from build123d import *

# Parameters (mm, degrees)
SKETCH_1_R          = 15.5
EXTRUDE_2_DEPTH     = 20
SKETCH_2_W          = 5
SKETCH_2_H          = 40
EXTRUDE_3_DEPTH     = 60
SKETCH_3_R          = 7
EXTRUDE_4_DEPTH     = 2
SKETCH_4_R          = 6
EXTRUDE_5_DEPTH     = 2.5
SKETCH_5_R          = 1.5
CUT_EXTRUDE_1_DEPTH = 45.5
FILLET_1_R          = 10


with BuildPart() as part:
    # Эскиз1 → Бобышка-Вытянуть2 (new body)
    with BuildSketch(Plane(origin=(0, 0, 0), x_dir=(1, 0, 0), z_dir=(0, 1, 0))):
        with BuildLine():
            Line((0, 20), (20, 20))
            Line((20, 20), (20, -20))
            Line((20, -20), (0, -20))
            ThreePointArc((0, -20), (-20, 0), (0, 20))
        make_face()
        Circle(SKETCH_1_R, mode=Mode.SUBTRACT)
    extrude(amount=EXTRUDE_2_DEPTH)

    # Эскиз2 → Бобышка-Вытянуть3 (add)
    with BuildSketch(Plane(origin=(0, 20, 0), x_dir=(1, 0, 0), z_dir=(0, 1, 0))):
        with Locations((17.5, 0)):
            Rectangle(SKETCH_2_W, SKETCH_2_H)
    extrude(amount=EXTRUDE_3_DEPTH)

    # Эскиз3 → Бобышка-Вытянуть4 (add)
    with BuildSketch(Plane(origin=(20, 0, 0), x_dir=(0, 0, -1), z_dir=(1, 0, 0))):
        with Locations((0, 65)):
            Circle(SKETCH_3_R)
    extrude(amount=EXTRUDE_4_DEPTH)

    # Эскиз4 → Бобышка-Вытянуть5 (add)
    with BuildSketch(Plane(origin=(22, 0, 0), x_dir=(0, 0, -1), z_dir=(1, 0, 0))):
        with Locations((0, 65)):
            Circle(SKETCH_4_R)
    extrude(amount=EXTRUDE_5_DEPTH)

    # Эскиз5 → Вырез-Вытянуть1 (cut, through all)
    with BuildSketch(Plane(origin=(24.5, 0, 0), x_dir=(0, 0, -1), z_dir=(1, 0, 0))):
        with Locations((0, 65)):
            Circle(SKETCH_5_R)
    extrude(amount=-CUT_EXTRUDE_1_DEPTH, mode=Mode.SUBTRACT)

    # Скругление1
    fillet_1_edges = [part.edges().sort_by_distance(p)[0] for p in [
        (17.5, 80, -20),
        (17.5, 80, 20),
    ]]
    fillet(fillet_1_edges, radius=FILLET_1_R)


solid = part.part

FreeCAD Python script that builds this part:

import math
import FreeCAD as App
import Part
import Sketcher
from FreeCAD import Vector
Q = App.Units.Quantity


def edges_at(feature, points):
    """Names of the edges that pass closest to the given points."""
    edges = feature.Shape.Edges
    near = lambda p: min(range(len(edges)), key=lambda i: edges[i].distToShape(Part.Vertex(*p))[0])
    return sorted({f"Edge{near(p) + 1}" for p in points})


def add_polygon(sketch, points):
    """Adds a closed chain of lines whose ends are joined by coincident constraints."""
    first, n = sketch.GeometryCount, len(points)
    for a, b in zip(points, points[1:] + points[:1]):
        sketch.addGeometry(Part.LineSegment(App.Vector(*a, 0), App.Vector(*b, 0)), False)
    for i in range(n):
        sketch.addConstraint(Sketcher.Constraint("Coincident", first + i, 2, first + (i + 1) % n, 1))

doc = App.newDocument("Part")
params = doc.addObject("Spreadsheet::Sheet", "Params")
for row, (alias, value) in enumerate([
    ("sketch1_diameter", "31 mm"),
    ("sketch1_radius", "20 mm"),
    ("sketch1_width", "20 mm"),
    ("pad1_length", "20 mm"),
    ("sketch2_width", "5 mm"),
    ("sketch2_height", "40 mm"),
    ("pad2_length", "60 mm"),
    ("sketch3_diameter", "14 mm"),
    ("pad3_length", "2 mm"),
    ("sketch4_diameter", "12 mm"),
    ("pad4_length", "2.5 mm"),
    ("sketch5_diameter", "3 mm"),
    ("fillet_radius", "10 mm"),
], start=1):
    params.set(f"A{row}", alias)
    params.set(f"B{row}", "=" + value)
    params.setAlias(f"B{row}", alias)

body = doc.addObject("PartDesign::Body", "Body")

# Sketch on XZ plane
sketch1 = body.newObject("Sketcher::SketchObject", "Sketch")
sketch1.AttachmentSupport = (doc.getObject("XZ_Plane"), [""])
sketch1.MapMode = "FlatFace"
sketch1.addGeometry(Part.LineSegment(Vector(20, -20, 0), Vector(0, -20, 0)), False)
sketch1.addGeometry(Part.ArcOfCircle(Part.Circle(Vector(0, 0, 0), Vector(0, 0, 1), 20), math.radians(90), math.radians(270)), False)
sketch1.addGeometry(Part.LineSegment(Vector(0, 20, 0), Vector(20, 20, 0)), False)
sketch1.addGeometry(Part.LineSegment(Vector(20, 20, 0), Vector(20, -20, 0)), False)
sketch1.addGeometry(Part.Circle(Vector(0, 0, 0), Vector(0, 0, 1), 16), False)
sketch1.addConstraint(Sketcher.Constraint("Tangent", 0, 2, 1, 2))
sketch1.addConstraint(Sketcher.Constraint("Tangent", 1, 1, 2, 1))
sketch1.addConstraint(Sketcher.Constraint("Coincident", 2, 2, 3, 1))
sketch1.addConstraint(Sketcher.Constraint("Coincident", 3, 2, 0, 1))
sketch1.addConstraint(Sketcher.Constraint("Horizontal", 0))
sketch1.addConstraint(Sketcher.Constraint("Horizontal", 2))
sketch1.addConstraint(Sketcher.Constraint("Vertical", 3))
sketch1.addConstraint(Sketcher.Constraint("Coincident", 1, 3, -1, 1))
sketch1.addConstraint(Sketcher.Constraint("Coincident", 4, 3, -1, 1))
sketch1.addConstraint(Sketcher.Constraint("Diameter", 4, Q("31 mm")))
sketch1.addConstraint(Sketcher.Constraint("Radius", 1, Q("20 mm")))
sketch1.addConstraint(Sketcher.Constraint("DistanceX", 0, 2, 0, 1, Q("20 mm")))
sketch1.setExpression("Constraints[9]", "Params.sketch1_diameter")
sketch1.setExpression("Constraints[10]", "Params.sketch1_radius")
sketch1.setExpression("Constraints[11]", "Params.sketch1_width")
pad1 = body.newObject("PartDesign::Pad", "Pad")
pad1.Profile = sketch1
pad1.setExpression("Length", "Params.pad1_length")
pad1.Reversed = True

# Sketch on XZ plane
sketch2 = body.newObject("Sketcher::SketchObject", "Sketch001")
sketch2.AttachmentSupport = (doc.getObject("XZ_Plane"), [""])
sketch2.MapMode = "FlatFace"
sketch2.AttachmentOffset = App.Placement(Vector(0, 0, -20), App.Rotation())
add_polygon(sketch2, [(15, -20), (15, 20), (20, 20), (20, -20)])  # lines 0-3
sketch2.addConstraint(Sketcher.Constraint("Vertical", 0))
sketch2.addConstraint(Sketcher.Constraint("Horizontal", 1))
sketch2.addConstraint(Sketcher.Constraint("Vertical", 2))
sketch2.addConstraint(Sketcher.Constraint("Horizontal", 3))
sketch2.addConstraint(Sketcher.Constraint("DistanceX", 1, 1, 1, 2, Q("5 mm")))
sketch2.addConstraint(Sketcher.Constraint("DistanceY", 0, 1, 0, 2, Q("40 mm")))
sketch2.addConstraint(Sketcher.Constraint("DistanceX", -1, 1, 0, 2, Q("15 mm")))
sketch2.addConstraint(Sketcher.Constraint("DistanceY", -1, 1, 0, 2, Q("20 mm")))
sketch2.setExpression("Constraints[8]", "Params.sketch2_width")
sketch2.setExpression("Constraints[9]", "Params.sketch2_height")
pad2 = body.newObject("PartDesign::Pad", "Pad001")
pad2.Profile = sketch2
pad2.setExpression("Length", "Params.pad2_length")
pad2.Reversed = True

# Sketch on YZ plane
sketch3 = body.newObject("Sketcher::SketchObject", "Sketch002")
sketch3.AttachmentSupport = (doc.getObject("YZ_Plane"), [""])
sketch3.MapMode = "FlatFace"
sketch3.AttachmentOffset = App.Placement(Vector(0, 0, 20), App.Rotation())
sketch3.addGeometry(Part.Circle(Vector(65, 0, 0), Vector(0, 0, 1), 7), False)
sketch3.addConstraint(Sketcher.Constraint("PointOnObject", 0, 3, -1))
sketch3.addConstraint(Sketcher.Constraint("Diameter", 0, Q("14 mm")))
sketch3.addConstraint(Sketcher.Constraint("DistanceX", -1, 1, 0, 3, Q("65 mm")))
sketch3.setExpression("Constraints[1]", "Params.sketch3_diameter")
pad3 = body.newObject("PartDesign::Pad", "Pad002")
pad3.Profile = sketch3
pad3.setExpression("Length", "Params.pad3_length")

# Sketch on YZ plane
sketch4 = body.newObject("Sketcher::SketchObject", "Sketch003")
sketch4.AttachmentSupport = (doc.getObject("YZ_Plane"), [""])
sketch4.MapMode = "FlatFace"
sketch4.AttachmentOffset = App.Placement(Vector(0, 0, 22), App.Rotation())
sketch4.addGeometry(Part.Circle(Vector(65, 0, 0), Vector(0, 0, 1), 6), False)
sketch4.addConstraint(Sketcher.Constraint("PointOnObject", 0, 3, -1))
sketch4.addConstraint(Sketcher.Constraint("Diameter", 0, Q("12 mm")))
sketch4.addConstraint(Sketcher.Constraint("DistanceX", -1, 1, 0, 3, Q("65 mm")))
sketch4.setExpression("Constraints[1]", "Params.sketch4_diameter")
pad4 = body.newObject("PartDesign::Pad", "Pad003")
pad4.Profile = sketch4
pad4.setExpression("Length", "Params.pad4_length")

# Sketch on YZ plane
sketch5 = body.newObject("Sketcher::SketchObject", "Sketch004")
sketch5.AttachmentSupport = (doc.getObject("YZ_Plane"), [""])
sketch5.MapMode = "FlatFace"
sketch5.AttachmentOffset = App.Placement(Vector(0, 0, 24.5), App.Rotation())
sketch5.addGeometry(Part.Circle(Vector(65, 0, 0), Vector(0, 0, 1), 1.5), False)
sketch5.addConstraint(Sketcher.Constraint("PointOnObject", 0, 3, -1))
sketch5.addConstraint(Sketcher.Constraint("Diameter", 0, Q("3 mm")))
sketch5.addConstraint(Sketcher.Constraint("DistanceX", -1, 1, 0, 3, Q("65 mm")))
sketch5.setExpression("Constraints[1]", "Params.sketch5_diameter")
pocket1 = body.newObject("PartDesign::Pocket", "Pocket")
pocket1.Profile = sketch5
pocket1.Type = "ThroughAll"
doc.recompute()

fillet = body.newObject("PartDesign::Fillet", "Fillet")
fillet.Base = (pocket1, edges_at(pocket1, [(17.5, 80, -20), (17.5, 80, 20)]))
fillet.setExpression("Radius", "Params.fillet_radius")

doc.recompute()
